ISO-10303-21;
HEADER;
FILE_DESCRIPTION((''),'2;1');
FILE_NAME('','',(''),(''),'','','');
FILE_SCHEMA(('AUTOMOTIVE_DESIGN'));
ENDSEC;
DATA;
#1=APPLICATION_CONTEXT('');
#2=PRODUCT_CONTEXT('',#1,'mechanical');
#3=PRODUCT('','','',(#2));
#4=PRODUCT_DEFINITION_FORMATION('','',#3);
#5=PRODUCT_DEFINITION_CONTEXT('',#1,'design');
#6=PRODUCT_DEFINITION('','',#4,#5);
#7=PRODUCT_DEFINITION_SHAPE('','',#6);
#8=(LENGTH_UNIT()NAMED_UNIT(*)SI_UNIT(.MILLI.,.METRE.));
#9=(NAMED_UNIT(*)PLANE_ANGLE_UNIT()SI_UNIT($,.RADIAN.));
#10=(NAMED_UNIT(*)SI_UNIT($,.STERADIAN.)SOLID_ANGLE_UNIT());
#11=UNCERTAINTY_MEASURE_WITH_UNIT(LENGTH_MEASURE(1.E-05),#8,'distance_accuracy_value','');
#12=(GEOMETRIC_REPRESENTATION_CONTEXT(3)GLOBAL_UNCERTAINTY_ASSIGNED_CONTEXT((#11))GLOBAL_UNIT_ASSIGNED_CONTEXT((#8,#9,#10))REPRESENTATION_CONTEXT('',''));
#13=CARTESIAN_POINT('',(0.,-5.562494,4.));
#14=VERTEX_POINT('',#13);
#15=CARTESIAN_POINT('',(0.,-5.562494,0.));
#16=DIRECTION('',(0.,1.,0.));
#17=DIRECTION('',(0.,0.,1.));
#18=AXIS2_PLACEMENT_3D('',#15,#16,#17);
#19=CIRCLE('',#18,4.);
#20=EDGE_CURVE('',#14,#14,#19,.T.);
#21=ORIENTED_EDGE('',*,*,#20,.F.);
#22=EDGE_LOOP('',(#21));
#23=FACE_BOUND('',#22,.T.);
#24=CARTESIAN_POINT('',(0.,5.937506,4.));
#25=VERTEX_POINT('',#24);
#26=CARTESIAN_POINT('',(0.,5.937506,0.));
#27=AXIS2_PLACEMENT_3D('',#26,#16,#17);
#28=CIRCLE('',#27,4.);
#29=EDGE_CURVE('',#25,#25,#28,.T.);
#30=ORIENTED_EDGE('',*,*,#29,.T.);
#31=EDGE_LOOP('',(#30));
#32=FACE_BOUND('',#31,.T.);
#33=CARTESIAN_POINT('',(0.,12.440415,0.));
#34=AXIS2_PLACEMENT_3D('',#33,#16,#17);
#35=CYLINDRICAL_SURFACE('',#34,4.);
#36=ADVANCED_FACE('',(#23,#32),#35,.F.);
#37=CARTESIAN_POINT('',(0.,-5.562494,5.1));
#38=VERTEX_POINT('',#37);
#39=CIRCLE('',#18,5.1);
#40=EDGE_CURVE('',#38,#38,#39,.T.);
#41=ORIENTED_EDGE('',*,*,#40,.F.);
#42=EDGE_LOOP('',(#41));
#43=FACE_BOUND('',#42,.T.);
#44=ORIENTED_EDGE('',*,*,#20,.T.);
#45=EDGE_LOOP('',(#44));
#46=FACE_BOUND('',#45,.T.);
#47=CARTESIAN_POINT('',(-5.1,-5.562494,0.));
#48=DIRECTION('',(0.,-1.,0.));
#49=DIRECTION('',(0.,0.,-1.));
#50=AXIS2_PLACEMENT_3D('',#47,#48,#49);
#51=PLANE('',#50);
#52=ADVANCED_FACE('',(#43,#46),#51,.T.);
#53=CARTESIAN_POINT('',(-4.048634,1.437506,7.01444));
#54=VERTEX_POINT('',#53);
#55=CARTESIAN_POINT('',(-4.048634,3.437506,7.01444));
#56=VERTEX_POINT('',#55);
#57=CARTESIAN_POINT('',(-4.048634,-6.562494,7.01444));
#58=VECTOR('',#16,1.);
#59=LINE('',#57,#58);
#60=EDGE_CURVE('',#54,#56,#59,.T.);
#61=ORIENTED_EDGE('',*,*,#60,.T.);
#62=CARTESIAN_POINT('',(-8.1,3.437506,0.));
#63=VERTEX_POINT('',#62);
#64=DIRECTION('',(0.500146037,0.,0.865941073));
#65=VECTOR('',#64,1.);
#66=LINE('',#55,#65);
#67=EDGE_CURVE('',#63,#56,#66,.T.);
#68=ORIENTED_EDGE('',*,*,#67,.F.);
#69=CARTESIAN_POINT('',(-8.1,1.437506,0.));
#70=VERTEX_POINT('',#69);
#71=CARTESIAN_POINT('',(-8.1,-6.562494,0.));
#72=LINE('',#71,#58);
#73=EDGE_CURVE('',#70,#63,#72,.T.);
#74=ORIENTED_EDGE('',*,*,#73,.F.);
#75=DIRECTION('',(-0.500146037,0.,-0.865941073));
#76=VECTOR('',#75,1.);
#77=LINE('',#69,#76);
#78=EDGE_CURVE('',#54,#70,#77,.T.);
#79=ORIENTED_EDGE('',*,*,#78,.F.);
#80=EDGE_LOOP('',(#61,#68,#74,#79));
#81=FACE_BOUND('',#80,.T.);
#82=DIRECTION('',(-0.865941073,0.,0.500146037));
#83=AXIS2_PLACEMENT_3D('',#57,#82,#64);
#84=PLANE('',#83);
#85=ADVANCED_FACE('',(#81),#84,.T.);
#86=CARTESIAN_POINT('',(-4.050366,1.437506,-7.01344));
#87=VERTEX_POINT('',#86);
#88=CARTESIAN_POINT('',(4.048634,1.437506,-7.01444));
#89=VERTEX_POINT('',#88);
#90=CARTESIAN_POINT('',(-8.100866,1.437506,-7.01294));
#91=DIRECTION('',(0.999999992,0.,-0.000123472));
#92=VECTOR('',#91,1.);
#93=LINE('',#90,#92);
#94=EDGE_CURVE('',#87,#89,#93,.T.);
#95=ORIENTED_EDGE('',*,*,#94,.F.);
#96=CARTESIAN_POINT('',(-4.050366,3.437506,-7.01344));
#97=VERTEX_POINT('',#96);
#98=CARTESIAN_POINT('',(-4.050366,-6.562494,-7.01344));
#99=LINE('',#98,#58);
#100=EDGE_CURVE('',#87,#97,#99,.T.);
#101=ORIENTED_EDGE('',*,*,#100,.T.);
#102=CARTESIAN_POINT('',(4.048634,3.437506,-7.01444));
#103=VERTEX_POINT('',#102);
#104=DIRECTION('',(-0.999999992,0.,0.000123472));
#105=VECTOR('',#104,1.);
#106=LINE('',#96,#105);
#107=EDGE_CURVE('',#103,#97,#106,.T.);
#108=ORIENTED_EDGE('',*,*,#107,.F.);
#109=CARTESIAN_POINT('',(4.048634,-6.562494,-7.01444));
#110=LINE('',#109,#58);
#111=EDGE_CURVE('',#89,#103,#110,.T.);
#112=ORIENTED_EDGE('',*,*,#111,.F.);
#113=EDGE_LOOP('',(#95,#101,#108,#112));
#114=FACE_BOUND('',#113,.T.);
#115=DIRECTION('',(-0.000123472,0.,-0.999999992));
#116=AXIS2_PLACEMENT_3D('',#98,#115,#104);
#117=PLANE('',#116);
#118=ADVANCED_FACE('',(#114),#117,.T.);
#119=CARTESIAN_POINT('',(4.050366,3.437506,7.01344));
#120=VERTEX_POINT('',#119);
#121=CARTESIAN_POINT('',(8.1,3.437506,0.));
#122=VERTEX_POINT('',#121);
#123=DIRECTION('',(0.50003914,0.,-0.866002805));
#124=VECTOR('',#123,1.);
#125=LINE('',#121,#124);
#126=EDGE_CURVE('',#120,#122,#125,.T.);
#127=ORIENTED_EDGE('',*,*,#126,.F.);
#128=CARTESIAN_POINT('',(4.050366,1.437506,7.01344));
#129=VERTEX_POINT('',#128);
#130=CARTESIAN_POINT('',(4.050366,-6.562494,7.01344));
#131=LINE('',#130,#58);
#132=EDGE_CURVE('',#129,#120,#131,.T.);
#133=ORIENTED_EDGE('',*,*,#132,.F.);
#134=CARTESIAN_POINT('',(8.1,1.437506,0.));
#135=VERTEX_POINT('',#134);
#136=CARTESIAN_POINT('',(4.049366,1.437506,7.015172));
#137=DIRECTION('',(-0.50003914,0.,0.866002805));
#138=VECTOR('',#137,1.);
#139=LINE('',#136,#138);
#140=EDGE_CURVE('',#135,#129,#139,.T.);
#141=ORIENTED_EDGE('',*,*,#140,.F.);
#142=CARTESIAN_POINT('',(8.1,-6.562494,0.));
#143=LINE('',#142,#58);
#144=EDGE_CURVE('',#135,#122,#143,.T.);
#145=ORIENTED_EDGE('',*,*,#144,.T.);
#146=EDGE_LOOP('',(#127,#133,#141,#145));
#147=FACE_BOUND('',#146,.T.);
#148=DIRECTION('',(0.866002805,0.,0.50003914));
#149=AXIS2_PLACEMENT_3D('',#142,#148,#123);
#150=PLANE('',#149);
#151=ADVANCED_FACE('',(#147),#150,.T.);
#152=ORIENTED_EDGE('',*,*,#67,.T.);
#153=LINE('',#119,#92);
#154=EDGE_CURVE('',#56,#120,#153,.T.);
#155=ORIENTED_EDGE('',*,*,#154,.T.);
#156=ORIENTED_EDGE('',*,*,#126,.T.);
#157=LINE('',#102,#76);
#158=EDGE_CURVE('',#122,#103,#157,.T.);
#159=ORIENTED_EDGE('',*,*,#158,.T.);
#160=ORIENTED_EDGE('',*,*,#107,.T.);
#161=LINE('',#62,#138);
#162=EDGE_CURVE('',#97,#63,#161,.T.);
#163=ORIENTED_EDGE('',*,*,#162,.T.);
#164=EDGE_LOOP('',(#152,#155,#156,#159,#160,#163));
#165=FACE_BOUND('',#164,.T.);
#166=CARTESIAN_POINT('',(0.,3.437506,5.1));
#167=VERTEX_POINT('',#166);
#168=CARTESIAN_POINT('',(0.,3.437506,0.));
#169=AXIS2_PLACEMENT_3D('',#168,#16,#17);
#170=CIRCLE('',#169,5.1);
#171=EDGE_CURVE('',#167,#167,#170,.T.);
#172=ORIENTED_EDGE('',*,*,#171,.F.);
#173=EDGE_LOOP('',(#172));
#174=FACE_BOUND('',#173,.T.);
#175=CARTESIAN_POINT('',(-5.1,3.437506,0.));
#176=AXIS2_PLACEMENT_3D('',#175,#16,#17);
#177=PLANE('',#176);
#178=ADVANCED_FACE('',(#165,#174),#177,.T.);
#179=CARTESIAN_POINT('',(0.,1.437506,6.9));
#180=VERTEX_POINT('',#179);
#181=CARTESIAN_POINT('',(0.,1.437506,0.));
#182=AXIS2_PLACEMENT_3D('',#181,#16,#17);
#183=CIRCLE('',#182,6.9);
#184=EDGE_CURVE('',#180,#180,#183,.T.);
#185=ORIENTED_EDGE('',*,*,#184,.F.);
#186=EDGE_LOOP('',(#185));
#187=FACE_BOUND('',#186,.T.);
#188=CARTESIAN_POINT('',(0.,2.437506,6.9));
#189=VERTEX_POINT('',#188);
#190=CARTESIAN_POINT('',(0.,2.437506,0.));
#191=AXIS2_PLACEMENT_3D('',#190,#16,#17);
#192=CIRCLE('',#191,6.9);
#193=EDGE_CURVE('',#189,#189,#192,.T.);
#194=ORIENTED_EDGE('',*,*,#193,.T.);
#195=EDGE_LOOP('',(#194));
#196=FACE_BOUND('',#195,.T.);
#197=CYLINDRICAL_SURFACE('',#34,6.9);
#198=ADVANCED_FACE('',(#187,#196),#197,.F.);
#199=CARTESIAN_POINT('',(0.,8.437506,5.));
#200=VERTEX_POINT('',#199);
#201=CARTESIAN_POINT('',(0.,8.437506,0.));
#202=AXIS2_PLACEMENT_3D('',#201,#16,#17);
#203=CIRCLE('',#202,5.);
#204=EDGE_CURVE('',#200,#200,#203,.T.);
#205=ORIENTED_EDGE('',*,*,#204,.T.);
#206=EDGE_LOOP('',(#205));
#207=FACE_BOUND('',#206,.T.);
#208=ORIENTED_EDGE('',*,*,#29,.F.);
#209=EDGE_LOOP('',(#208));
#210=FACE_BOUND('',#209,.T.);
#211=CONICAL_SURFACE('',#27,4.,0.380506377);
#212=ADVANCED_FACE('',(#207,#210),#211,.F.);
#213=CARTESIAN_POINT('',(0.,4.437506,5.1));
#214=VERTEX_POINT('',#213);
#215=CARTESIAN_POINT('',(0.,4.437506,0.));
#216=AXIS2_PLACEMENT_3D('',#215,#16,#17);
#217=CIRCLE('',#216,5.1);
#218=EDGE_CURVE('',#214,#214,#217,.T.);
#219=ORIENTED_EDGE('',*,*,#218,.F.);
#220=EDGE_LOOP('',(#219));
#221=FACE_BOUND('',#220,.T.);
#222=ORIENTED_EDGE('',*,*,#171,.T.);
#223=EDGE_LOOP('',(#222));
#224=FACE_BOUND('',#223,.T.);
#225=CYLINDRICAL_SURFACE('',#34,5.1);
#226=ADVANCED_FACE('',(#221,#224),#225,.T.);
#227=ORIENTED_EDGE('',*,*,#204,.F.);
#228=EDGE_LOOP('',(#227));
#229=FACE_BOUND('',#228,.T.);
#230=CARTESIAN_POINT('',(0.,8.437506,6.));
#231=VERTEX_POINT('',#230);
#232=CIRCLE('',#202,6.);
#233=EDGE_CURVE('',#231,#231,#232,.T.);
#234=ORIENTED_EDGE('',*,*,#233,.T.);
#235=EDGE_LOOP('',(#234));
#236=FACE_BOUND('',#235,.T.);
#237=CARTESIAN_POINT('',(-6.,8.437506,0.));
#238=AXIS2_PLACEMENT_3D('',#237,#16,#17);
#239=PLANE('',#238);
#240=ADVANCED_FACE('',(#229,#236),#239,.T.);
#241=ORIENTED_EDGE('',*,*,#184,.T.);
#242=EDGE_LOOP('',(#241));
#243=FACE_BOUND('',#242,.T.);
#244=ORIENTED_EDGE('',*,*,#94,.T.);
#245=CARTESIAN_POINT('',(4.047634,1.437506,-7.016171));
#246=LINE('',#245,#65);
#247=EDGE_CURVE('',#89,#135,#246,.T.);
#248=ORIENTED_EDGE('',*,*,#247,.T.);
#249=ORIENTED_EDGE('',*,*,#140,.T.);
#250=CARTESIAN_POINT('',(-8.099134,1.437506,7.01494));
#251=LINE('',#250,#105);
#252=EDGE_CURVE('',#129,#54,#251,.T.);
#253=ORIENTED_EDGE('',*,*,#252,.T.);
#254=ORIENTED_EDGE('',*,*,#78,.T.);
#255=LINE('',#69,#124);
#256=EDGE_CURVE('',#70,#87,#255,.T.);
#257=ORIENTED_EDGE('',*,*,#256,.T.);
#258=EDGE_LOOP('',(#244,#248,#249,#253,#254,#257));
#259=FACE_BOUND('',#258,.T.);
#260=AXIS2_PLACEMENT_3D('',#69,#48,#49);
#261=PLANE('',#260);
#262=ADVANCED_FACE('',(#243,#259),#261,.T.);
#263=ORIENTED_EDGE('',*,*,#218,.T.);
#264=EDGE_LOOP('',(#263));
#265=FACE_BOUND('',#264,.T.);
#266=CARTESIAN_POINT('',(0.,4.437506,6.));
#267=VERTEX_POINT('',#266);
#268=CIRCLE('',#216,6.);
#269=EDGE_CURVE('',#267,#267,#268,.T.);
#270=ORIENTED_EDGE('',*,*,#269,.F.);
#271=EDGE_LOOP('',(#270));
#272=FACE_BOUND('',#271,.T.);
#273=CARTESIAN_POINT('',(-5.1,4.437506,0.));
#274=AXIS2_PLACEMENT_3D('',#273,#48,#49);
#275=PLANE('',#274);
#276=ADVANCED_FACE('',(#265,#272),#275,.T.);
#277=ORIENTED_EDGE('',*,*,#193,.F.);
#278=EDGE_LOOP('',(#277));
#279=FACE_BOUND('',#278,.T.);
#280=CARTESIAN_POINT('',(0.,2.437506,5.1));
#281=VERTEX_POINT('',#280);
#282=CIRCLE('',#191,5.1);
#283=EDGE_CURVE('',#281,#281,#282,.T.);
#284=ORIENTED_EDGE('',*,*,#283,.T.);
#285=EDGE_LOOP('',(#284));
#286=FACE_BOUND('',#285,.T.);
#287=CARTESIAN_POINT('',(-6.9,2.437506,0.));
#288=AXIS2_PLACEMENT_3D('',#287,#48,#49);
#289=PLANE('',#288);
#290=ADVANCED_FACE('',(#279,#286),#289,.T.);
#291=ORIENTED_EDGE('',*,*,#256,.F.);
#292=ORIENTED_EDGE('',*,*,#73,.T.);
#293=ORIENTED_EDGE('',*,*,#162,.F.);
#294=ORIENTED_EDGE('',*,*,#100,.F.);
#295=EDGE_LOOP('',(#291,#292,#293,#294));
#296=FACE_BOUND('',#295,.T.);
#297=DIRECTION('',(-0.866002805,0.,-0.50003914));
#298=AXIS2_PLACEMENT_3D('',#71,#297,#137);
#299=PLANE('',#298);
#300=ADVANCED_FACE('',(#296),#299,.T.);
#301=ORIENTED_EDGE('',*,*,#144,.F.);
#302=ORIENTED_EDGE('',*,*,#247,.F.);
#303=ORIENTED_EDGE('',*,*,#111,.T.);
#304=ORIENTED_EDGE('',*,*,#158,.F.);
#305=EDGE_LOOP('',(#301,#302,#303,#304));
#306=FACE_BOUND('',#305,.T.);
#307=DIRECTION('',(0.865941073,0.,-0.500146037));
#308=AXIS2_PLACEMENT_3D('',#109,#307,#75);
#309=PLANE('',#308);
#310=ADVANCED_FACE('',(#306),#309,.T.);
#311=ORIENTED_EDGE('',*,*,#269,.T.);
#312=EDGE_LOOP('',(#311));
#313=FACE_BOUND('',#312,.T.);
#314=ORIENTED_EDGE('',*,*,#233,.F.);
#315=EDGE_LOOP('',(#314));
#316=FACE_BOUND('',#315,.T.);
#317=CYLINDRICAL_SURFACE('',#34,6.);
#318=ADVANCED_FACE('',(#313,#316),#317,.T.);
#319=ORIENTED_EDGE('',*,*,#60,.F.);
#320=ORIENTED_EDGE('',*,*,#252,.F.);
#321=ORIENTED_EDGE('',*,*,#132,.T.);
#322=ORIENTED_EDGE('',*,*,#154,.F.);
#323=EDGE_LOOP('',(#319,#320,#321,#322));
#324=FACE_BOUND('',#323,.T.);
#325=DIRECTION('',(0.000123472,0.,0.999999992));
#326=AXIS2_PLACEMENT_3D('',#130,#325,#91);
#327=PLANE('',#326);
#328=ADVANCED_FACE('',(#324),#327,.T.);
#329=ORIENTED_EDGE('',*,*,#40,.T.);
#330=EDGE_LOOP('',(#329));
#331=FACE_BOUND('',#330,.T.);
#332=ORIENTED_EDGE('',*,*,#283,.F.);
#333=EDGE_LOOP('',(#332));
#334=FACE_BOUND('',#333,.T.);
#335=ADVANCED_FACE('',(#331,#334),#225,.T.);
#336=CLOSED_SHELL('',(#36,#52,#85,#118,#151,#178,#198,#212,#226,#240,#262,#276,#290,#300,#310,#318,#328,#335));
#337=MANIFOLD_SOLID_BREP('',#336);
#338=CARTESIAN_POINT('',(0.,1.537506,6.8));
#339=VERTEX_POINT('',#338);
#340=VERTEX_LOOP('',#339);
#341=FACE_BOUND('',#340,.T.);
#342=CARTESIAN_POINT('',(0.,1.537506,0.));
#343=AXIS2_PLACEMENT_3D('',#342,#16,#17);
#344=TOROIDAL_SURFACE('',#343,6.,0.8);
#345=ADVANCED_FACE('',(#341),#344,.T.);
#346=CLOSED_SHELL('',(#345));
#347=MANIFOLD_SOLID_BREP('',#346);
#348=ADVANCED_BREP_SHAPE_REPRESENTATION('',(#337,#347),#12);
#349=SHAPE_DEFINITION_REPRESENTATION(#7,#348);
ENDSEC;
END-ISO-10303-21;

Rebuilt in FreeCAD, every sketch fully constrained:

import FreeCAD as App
import Part
import Sketcher

V = App.Vector
Q = App.Units.Quantity


def add_polygon(sketch, points):
    """Adds a closed chain of lines whose ends are joined by coincident constraints."""
    first, n = sketch.GeometryCount, len(points)
    for a, b in zip(points, points[1:] + points[:1]):
        sketch.addGeometry(Part.LineSegment(App.Vector(*a, 0), App.Vector(*b, 0)), False)
    for i in range(n):
        sketch.addConstraint(Sketcher.Constraint("Coincident", first + i, 2, first + (i + 1) % n, 1))

doc = App.newDocument("Part")
params = doc.addObject("Spreadsheet::Sheet", "Params")
for row, (alias, value) in enumerate([
    ("sketch1_diameter", "1.6 mm"),
    ("sketch1_width", "3 mm"),
    ("sketch1_width2", "1 mm"),
    ("sketch1_height", "2 mm"),
    ("sketch1_height2", "8 mm"),
    ("revolution_angle", "360 deg"),
    ("pocket1_length", "10 mm"),
], start=1):
    params.set(f"A{row}", alias)
    params.set(f"B{row}", "=" + value)
    params.setAlias(f"B{row}", alias)

body = doc.addObject("PartDesign::Body", "Body")
body.AllowCompound = True

# Sketch on XY plane
sketch1 = body.newObject("Sketcher::SketchObject", "Sketch")
sketch1.AttachmentSupport = (doc.getObject("XY_Plane"), [""])
sketch1.MapMode = "FlatFace"
sketch1.addGeometry(Part.Circle(V(-6, 1.5, 0), V(0, 0, 1), 0.8), False)  # 0
add_polygon(sketch1, [(-5.1, 3.4), (-8.1, 3.4), (-8.1, 1.4), (-6.9, 1.4), (-6.9, 2.4), (-5.1, 2.4), (-5.1, -5.6), (-4, -5.6), (-4, 5.9), (-5, 8.4), (-6, 8.4), (-6, 4.4), (-5.1, 4.4)])  # lines 1-13
sketch1.addConstraint([
    Sketcher.Constraint("Horizontal", 1),
    Sketcher.Constraint("Vertical", 2),
    Sketcher.Constraint("Horizontal", 3),
    Sketcher.Constraint("Vertical", 4),
    Sketcher.Constraint("Horizontal", 5),
    Sketcher.Constraint("Vertical", 6),
    Sketcher.Constraint("Horizontal", 7),
    Sketcher.Constraint("Vertical", 8),
    Sketcher.Constraint("Horizontal", 10),
    Sketcher.Constraint("Vertical", 11),
    Sketcher.Constraint("Horizontal", 12),
    Sketcher.Constraint("Vertical", 13),
    Sketcher.Constraint("Vertical", 0, 3, 10, 2),
    Sketcher.Constraint("Vertical", 6, 2, 12, 2),
    Sketcher.Constraint("Equal", 10, 4),
    Sketcher.Constraint("Equal", 4, 13),
    Sketcher.Constraint("Diameter", 0, Q("1.6 mm")),
    Sketcher.Constraint("DistanceX", 1, 2, 1, 1, Q("3 mm")),
    Sketcher.Constraint("DistanceX", 10, 2, 10, 1, Q("1 mm")),
    Sketcher.Constraint("DistanceY", 2, 2, 2, 1, Q("2 mm")),
    Sketcher.Constraint("DistanceY", 6, 2, 6, 1, Q("8 mm")),
    Sketcher.Constraint("DistanceY", 11, 2, 11, 1, Q("4 mm")),
    Sketcher.Constraint("DistanceX", 3, 1, 3, 2, Q("1.2 mm")),
    Sketcher.Constraint("DistanceX", 7, 1, 7, 2, Q("1.1 mm")),
    Sketcher.Constraint("DistanceX", 12, 1, 12, 2, Q("0.9 mm")),
    Sketcher.Constraint("DistanceY", 8, 1, 8, 2, Q("11.5 mm")),
    Sketcher.Constraint("DistanceX", 0, 3, -1, 1, Q("6 mm")),
    Sketcher.Constraint("DistanceY", 0, 3, 1, 2, Q("1.9 mm")),
    Sketcher.Constraint("DistanceY", -1, 1, 0, 3, Q("1.537506 mm")),
])
sketch1.setExpression("Constraints[29]", "Params.sketch1_diameter")
sketch1.setExpression("Constraints[30]", "Params.sketch1_width")
sketch1.setExpression("Constraints[31]", "Params.sketch1_width2")
sketch1.setExpression("Constraints[32]", "Params.sketch1_height")
sketch1.setExpression("Constraints[33]", "Params.sketch1_height2")
revolution = body.newObject("PartDesign::Revolution", "Revolution")
revolution.Profile = sketch1
revolution.ReferenceAxis = (sketch1, ["V_Axis"])
revolution.setExpression("Angle", "Params.revolution_angle")

# Sketch on XZ plane
sketch2 = body.newObject("Sketcher::SketchObject", "Sketch001")
sketch2.AttachmentSupport = (doc.getObject("XZ_Plane"), [""])
sketch2.MapMode = "FlatFace"
sketch2.AttachmentOffset = App.Placement(V(0, 0, -3.437506), App.Rotation())
sketch2.addGeometry(Part.Circle(V(0, 0, 0), V(0, 0, 1), 13), False)  # 0
add_polygon(sketch2, [(-4, 7), (-8, 0), (-4, -7), (4, -7), (8, 0), (4, 7)])  # lines 1-6
sketch2.addConstraint([
    Sketcher.Constraint("Symmetric", 1, 2, 4, 2, -1, 1),
    Sketcher.Constraint("Symmetric", 2, 2, 5, 2, -1, 1),
    Sketcher.Constraint("Symmetric", 3, 2, 6, 2, -1, 1),
    Sketcher.Constraint("PointOnObject", 0, 3, -1),
    Sketcher.Constraint("PointOnObject", 1, 2, -1),
    Sketcher.Constraint("DistanceX", 1, 2, -1, 1, Q("8.1 mm")),
    Sketcher.Constraint("Diameter", 0, Q("25.284829 mm")),
    Sketcher.Constraint("Distance", 3, Q("8.099 mm")),
    Sketcher.Constraint("DistanceX", -1, 1, 0, 3, Q("0.002 mm")),
    Sketcher.Constraint("DistanceY", 3, 2, 2, 2, Q("0.001 mm")),
    Sketcher.Constraint("DistanceY", 2, 2, -1, 1, Q("7.01344 mm")),
    Sketcher.Constraint("Distance", 1, Q("8.100366 mm")),
])
pocket1 = body.newObject("PartDesign::Pocket", "Pocket")
pocket1.Profile = sketch2
pocket1.setExpression("Length", "Params.pocket1_length")
pocket1.Reversed = True

doc.recompute()
